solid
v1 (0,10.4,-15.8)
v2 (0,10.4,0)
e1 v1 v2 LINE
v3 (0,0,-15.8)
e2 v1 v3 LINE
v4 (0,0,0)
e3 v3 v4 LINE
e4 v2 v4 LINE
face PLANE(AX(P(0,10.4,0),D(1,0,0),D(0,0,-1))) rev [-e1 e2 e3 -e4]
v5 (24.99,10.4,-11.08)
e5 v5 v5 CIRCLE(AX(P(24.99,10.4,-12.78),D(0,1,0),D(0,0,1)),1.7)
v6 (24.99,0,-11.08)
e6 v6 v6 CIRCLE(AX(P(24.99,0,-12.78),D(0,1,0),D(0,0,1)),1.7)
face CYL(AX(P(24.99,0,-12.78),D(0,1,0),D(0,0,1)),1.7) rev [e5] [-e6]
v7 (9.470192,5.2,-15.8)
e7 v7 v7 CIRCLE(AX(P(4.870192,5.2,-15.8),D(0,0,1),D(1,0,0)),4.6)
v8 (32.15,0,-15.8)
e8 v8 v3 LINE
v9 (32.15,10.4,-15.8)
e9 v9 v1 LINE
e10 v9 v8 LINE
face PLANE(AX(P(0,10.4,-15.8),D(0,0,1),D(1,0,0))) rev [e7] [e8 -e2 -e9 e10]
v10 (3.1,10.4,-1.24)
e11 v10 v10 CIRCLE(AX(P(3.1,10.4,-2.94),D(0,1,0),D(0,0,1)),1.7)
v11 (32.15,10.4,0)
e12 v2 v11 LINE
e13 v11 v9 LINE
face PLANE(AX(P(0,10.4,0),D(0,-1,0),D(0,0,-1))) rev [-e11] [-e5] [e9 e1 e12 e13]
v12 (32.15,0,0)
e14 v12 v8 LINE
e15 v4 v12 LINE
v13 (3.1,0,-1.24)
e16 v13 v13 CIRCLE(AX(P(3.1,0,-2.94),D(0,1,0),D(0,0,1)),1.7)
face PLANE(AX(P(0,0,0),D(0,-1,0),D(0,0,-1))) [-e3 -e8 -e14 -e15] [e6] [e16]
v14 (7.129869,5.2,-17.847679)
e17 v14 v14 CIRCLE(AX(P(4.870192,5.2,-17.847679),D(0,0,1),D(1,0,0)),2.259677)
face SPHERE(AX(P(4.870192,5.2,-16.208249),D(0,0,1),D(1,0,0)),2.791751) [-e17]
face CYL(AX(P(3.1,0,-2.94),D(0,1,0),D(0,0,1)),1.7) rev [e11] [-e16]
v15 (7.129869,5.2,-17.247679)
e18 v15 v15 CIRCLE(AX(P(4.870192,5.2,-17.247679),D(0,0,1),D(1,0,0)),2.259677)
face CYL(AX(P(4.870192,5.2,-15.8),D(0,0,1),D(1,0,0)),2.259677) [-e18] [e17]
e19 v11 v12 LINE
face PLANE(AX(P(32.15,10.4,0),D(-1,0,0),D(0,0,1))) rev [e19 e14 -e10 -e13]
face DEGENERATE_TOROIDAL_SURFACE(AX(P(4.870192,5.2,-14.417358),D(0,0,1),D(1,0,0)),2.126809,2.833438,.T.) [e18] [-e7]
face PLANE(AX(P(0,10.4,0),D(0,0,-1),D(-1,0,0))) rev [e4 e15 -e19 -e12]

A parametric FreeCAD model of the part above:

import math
import FreeCAD as App
import Part
import Sketcher

V = App.Vector
Q = App.Units.Quantity


def add_polygon(sketch, points):
    """Adds a closed chain of lines whose ends are joined by coincident constraints."""
    first, n = sketch.GeometryCount, len(points)
    for a, b in zip(points, points[1:] + points[:1]):
        sketch.addGeometry(Part.LineSegment(App.Vector(*a, 0), App.Vector(*b, 0)), False)
    for i in range(n):
        sketch.addConstraint(Sketcher.Constraint("Coincident", first + i, 2, first + (i + 1) % n, 1))

doc = App.newDocument("Part")
body = doc.addObject("PartDesign::Body", "Body")

# Sketch on XZ plane
sketch1 = body.newObject("Sketcher::SketchObject", "Sketch")
sketch1.AttachmentSupport = (doc.getObject("XZ_Plane"), [""])
sketch1.MapMode = "FlatFace"
add_polygon(sketch1, [(0, -16), (0, 0), (32, 0), (32, -16)])  # lines 0-3
sketch1.addConstraint(Sketcher.Constraint("Vertical", 0))
sketch1.addConstraint(Sketcher.Constraint("Horizontal", 1))
sketch1.addConstraint(Sketcher.Constraint("Vertical", 2))
sketch1.addConstraint(Sketcher.Constraint("Horizontal", 3))
sketch1.addConstraint(Sketcher.Constraint("Coincident", 0, 2, -1, 1))
sketch1.addConstraint(Sketcher.Constraint("DistanceY", 0, 1, 0, 2, Q("15.8 mm")))
sketch1.addConstraint(Sketcher.Constraint("DistanceX", 1, 1, 1, 2, Q("32.15 mm")))
pad1 = body.newObject("PartDesign::Pad", "Pad")
pad1.Profile = sketch1
pad1.Length = 10.4
pad1.Reversed = True

# Sketch on XZ plane
sketch2 = body.newObject("Sketcher::SketchObject", "Sketch001")
sketch2.AttachmentSupport = (doc.getObject("XZ_Plane"), [""])
sketch2.MapMode = "FlatFace"
sketch2.AttachmentOffset = App.Placement(V(0, 0, -10.4), App.Rotation())
sketch2.addGeometry(Part.Circle(V(3.1, -2.9, 0), V(0, 0, 1), 1.7), False)
sketch2.addGeometry(Part.Circle(V(25, -12.8, 0), V(0, 0, 1), 1.7), False)
sketch2.addConstraint(Sketcher.Constraint("Equal", 0, 1))
sketch2.addConstraint(Sketcher.Constraint("Diameter", 0, Q("3.4 mm")))
sketch2.addConstraint(Sketcher.Constraint("DistanceX", -1, 1, 0, 3, Q("3.1 mm")))
sketch2.addConstraint(Sketcher.Constraint("DistanceY", 0, 3, -1, 1, Q("2.94 mm")))
sketch2.addConstraint(Sketcher.Constraint("DistanceX", -1, 1, 1, 3, Q("24.99 mm")))
sketch2.addConstraint(Sketcher.Constraint("DistanceY", 1, 3, -1, 1, Q("12.78 mm")))
pocket1 = body.newObject("PartDesign::Pocket", "Pocket")
pocket1.Profile = sketch2
pocket1.Length = 10.4
pocket1.Reversed = True

# Sketch on XZ plane
sketch3 = body.newObject("Sketcher::SketchObject", "Sketch002")
sketch3.AttachmentSupport = (doc.getObject("XZ_Plane"), [""])
sketch3.MapMode = "FlatFace"
sketch3.AttachmentOffset = App.Placement(V(0, 0, -5.2), App.Rotation())
sketch3.addGeometry(Part.LineSegment(V(4.9, -15.8, 0), V(9.5, -15.8, 0)), False)
sketch3.addGeometry(Part.ArcOfCircle(Part.Circle(V(7, -14.4, 0), V(0, 0, 1), 2.8), math.radians(-87), math.radians(-29)), False)
sketch3.addGeometry(Part.LineSegment(V(7.1, -17.2, 0), V(7.1, -17.8, 0)), False)
sketch3.addGeometry(Part.ArcOfCircle(Part.Circle(V(4.9, -16.2, 0), V(0, 0, 1), 2.8), math.radians(-90), math.radians(-36)), False)
sketch3.addGeometry(Part.LineSegment(V(4.9, -19, 0), V(4.9, -15.8, 0)), False)
sketch3.addGeometry(Part.LineSegment(V(4.9, -14.4, 0), V(4.9, -19, 0)), True)  # axis
sketch3.addConstraint(Sketcher.Constraint("Coincident", 0, 2, 1, 2))
sketch3.addConstraint(Sketcher.Constraint("Coincident", 1, 1, 2, 1))
sketch3.addConstraint(Sketcher.Constraint("Coincident", 2, 2, 3, 2))
sketch3.addConstraint(Sketcher.Constraint("Coincident", 3, 1, 4, 1))
sketch3.addConstraint(Sketcher.Constraint("Coincident", 4, 2, 0, 1))
sketch3.addConstraint(Sketcher.Constraint("Horizontal", 0))
sketch3.addConstraint(Sketcher.Constraint("Vertical", 2))
sketch3.addConstraint(Sketcher.Constraint("Vertical", 4))
sketch3.addConstraint(Sketcher.Constraint("Vertical", 5))
sketch3.addConstraint(Sketcher.Constraint("Coincident", 5, 2, 3, 1))
sketch3.addConstraint(Sketcher.Constraint("Horizontal", 1, 3, 5, 1))
sketch3.addConstraint(Sketcher.Constraint("DistanceX", 0, 1, 0, 2, Q("4.6 mm")))
sketch3.addConstraint(Sketcher.Constraint("DistanceY", 2, 2, 2, 1, Q("0.6 mm")))
sketch3.addConstraint(Sketcher.Constraint("DistanceY", 4, 1, 4, 2, Q("3.2 mm")))
sketch3.addConstraint(Sketcher.Constraint("DistanceY", 3, 1, -1, 1, Q("19 mm")))
sketch3.addConstraint(Sketcher.Constraint("DistanceX", 3, 3, 0, 2, Q("4.6 mm")))
sketch3.addConstraint(Sketcher.Constraint("Radius", 1, Q("2.833438 mm")))
sketch3.addConstraint(Sketcher.Constraint("Radius", 3, Q("2.791751 mm")))
sketch3.addConstraint(Sketcher.Constraint("DistanceX", -1, 1, 1, 3, Q("6.997001 mm")))
sketch3.addConstraint(Sketcher.Constraint("DistanceY", 5, 2, 5, 1, Q("4.582642 mm")))
revolution = body.newObject("PartDesign::Revolution", "Revolution")
revolution.Profile = sketch3
revolution.ReferenceAxis = (sketch3, ["Axis0"])
revolution.Angle = 360

doc.recompute()
